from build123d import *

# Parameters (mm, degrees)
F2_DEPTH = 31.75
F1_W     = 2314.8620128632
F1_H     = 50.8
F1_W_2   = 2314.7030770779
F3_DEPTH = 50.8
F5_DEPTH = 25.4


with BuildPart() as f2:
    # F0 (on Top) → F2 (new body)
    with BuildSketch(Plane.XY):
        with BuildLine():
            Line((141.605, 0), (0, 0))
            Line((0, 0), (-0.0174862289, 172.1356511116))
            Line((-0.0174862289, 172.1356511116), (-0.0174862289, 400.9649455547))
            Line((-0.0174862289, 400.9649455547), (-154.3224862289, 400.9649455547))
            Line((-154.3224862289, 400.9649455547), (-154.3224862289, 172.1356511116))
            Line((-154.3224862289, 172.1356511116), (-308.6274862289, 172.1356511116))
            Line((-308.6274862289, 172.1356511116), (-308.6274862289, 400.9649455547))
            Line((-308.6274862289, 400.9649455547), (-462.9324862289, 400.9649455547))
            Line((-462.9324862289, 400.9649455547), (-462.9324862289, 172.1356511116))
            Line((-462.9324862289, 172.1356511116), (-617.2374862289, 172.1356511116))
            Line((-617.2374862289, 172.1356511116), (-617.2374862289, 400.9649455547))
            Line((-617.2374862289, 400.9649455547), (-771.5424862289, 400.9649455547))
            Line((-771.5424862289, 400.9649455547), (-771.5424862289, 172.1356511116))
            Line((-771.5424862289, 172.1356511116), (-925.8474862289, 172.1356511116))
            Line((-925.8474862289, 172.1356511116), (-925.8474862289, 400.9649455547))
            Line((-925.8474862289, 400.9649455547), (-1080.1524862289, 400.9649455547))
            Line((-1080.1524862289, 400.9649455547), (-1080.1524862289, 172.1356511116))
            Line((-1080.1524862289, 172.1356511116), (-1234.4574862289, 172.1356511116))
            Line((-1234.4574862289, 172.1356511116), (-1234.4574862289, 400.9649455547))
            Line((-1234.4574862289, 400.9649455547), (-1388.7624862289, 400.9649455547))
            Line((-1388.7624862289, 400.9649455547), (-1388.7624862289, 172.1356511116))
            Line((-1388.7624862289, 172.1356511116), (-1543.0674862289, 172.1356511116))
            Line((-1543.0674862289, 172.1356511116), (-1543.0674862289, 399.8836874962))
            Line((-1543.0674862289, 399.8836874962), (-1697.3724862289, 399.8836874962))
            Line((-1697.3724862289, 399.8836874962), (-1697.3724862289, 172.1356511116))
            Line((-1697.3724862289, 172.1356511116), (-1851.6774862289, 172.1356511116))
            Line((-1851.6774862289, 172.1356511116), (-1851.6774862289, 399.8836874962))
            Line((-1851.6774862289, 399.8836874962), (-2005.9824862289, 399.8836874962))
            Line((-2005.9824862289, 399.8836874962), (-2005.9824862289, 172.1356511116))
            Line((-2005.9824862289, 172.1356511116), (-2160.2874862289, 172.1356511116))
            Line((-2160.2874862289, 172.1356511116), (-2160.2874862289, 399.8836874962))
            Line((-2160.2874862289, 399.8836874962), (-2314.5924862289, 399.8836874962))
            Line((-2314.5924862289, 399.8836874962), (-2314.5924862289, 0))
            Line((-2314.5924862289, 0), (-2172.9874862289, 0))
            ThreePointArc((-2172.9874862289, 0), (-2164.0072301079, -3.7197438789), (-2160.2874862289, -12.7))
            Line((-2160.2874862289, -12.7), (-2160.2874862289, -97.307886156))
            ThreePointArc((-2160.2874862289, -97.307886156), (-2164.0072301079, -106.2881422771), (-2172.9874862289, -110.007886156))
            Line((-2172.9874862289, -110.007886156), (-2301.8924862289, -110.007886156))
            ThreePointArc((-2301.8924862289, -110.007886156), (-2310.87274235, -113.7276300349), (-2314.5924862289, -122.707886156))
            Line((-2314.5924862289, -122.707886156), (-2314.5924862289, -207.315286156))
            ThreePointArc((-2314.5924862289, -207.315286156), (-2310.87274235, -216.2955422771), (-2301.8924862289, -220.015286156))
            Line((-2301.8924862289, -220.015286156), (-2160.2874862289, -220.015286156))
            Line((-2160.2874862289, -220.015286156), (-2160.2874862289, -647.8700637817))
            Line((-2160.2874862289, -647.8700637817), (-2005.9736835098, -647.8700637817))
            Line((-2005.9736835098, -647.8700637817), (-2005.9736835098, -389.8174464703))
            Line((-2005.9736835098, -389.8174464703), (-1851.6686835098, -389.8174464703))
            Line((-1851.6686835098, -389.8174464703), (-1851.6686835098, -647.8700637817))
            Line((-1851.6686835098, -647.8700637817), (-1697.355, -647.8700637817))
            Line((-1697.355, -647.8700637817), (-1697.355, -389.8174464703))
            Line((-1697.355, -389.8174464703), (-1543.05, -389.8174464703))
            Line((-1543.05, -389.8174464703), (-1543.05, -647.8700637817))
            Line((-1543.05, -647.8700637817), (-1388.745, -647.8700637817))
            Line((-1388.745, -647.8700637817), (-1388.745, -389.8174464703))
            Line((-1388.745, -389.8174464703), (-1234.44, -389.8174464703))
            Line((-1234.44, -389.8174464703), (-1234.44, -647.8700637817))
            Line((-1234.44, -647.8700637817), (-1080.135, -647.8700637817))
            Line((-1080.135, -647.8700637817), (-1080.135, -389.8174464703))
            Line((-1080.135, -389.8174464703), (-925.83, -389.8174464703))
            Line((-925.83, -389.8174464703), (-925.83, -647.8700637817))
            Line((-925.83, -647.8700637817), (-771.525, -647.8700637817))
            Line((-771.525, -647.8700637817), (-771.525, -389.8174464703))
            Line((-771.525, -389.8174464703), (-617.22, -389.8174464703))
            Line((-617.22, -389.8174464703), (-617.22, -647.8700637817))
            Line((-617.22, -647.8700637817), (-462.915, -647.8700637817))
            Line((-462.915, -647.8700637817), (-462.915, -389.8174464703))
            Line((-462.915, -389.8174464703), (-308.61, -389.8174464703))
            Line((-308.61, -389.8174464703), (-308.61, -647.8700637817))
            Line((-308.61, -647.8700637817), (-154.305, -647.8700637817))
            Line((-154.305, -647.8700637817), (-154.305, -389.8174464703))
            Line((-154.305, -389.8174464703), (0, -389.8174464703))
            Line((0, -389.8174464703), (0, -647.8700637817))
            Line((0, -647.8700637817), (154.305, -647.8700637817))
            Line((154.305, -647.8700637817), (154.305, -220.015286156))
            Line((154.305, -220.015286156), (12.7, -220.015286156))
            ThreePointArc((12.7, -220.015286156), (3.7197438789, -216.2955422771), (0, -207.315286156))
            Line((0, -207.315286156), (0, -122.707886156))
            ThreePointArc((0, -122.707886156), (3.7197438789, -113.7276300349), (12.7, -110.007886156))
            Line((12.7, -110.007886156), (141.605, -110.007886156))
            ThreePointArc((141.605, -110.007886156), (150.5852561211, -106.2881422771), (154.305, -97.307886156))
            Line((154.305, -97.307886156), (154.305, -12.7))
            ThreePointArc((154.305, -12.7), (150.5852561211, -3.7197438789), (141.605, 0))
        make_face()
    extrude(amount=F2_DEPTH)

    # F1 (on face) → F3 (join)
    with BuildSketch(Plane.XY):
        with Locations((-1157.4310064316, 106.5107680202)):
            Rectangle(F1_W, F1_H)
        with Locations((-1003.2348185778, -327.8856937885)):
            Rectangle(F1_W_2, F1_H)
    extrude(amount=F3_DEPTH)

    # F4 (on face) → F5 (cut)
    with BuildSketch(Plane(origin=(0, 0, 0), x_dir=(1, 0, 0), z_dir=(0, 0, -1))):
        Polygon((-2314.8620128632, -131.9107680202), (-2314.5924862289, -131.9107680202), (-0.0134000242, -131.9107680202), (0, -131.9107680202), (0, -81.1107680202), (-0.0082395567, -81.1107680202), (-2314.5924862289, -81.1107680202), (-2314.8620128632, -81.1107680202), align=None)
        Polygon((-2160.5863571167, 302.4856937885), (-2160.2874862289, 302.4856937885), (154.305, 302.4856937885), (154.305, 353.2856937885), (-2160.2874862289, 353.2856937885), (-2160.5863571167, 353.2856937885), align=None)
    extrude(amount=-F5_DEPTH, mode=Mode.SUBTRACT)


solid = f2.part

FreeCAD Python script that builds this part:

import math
import FreeCAD as App
import Part
import Sketcher
from FreeCAD import Vector
Q = App.Units.Quantity

doc = App.newDocument("Part")
body = doc.addObject("PartDesign::Body", "Body")

# Sketch on XY plane
sketch1 = body.newObject("Sketcher::SketchObject", "Sketch")
sketch1.AttachmentSupport = (doc.getObject("XY_Plane"), [""])
sketch1.MapMode = "FlatFace"
sketch1.addGeometry(Part.LineSegment(Vector(141.605, 0, 0), Vector(0, 0, 0)), False)
sketch1.addGeometry(Part.LineSegment(Vector(0, 0, 0), Vector(-0.017486, 172.135651, 0)), False)
sketch1.addGeometry(Part.LineSegment(Vector(-0.017486, 172.135651, 0), Vector(-0.017486, 400.964946, 0)), False)
sketch1.addGeometry(Part.LineSegment(Vector(-0.017486, 400.964946, 0), Vector(-154.322486, 400.964946, 0)), False)
sketch1.addGeometry(Part.LineSegment(Vector(-154.322486, 400.964946, 0), Vector(-154.322486, 172.135651, 0)), False)
sketch1.addGeometry(Part.LineSegment(Vector(-154.322486, 172.135651, 0), Vector(-308.627486, 172.135651, 0)), False)
sketch1.addGeometry(Part.LineSegment(Vector(-308.627486, 172.135651, 0), Vector(-308.627486, 400.964946, 0)), False)
sketch1.addGeometry(Part.LineSegment(Vector(-308.627486, 400.964946, 0), Vector(-462.932486, 400.964946, 0)), False)
sketch1.addGeometry(Part.LineSegment(Vector(-462.932486, 400.964946, 0), Vector(-462.932486, 172.135651, 0)), False)
sketch1.addGeometry(Part.LineSegment(Vector(-462.932486, 172.135651, 0), Vector(-617.237486, 172.135651, 0)), False)
sketch1.addGeometry(Part.LineSegment(Vector(-617.237486, 172.135651, 0), Vector(-617.237486, 400.964946, 0)), False)
sketch1.addGeometry(Part.LineSegment(Vector(-617.237486, 400.964946, 0), Vector(-771.542486, 400.964946, 0)), False)
sketch1.addGeometry(Part.LineSegment(Vector(-771.542486, 400.964946, 0), Vector(-771.542486, 172.135651, 0)), False)
sketch1.addGeometry(Part.LineSegment(Vector(-771.542486, 172.135651, 0), Vector(-925.847486, 172.135651, 0)), False)
sketch1.addGeometry(Part.LineSegment(Vector(-925.847486, 172.135651, 0), Vector(-925.847486, 400.964946, 0)), False)
sketch1.addGeometry(Part.LineSegment(Vector(-925.847486, 400.964946, 0), Vector(-1080.152486, 400.964946, 0)), False)
sketch1.addGeometry(Part.LineSegment(Vector(-1080.152486, 400.964946, 0), Vector(-1080.152486, 172.135651, 0)), False)
sketch1.addGeometry(Part.LineSegment(Vector(-1080.152486, 172.135651, 0), Vector(-1234.457486, 172.135651, 0)), False)
sketch1.addGeometry(Part.LineSegment(Vector(-1234.457486, 172.135651, 0), Vector(-1234.457486, 400.964946, 0)), False)
sketch1.addGeometry(Part.LineSegment(Vector(-1234.457486, 400.964946, 0), Vector(-1388.762486, 400.964946, 0)), False)
sketch1.addGeometry(Part.LineSegment(Vector(-1388.762486, 400.964946, 0), Vector(-1388.762486, 172.135651, 0)), False)
sketch1.addGeometry(Part.LineSegment(Vector(-1388.762486, 172.135651, 0), Vector(-1543.067486, 172.135651, 0)), False)
sketch1.addGeometry(Part.LineSegment(Vector(-1543.067486, 172.135651, 0), Vector(-1543.067486, 399.883687, 0)), False)
sketch1.addGeometry(Part.LineSegment(Vector(-1543.067486, 399.883687, 0), Vector(-1697.372486, 399.883687, 0)), False)
sketch1.addGeometry(Part.LineSegment(Vector(-1697.372486, 399.883687, 0), Vector(-1697.372486, 172.135651, 0)), False)
sketch1.addGeometry(Part.LineSegment(Vector(-1697.372486, 172.135651, 0), Vector(-1851.677486, 172.135651, 0)), False)
sketch1.addGeometry(Part.LineSegment(Vector(-1851.677486, 172.135651, 0), Vector(-1851.677486, 399.883687, 0)), False)
sketch1.addGeometry(Part.LineSegment(Vector(-1851.677486, 399.883687, 0), Vector(-2005.982486, 399.883687, 0)), False)
sketch1.addGeometry(Part.LineSegment(Vector(-2005.982486, 399.883687, 0), Vector(-2005.982486, 172.135651, 0)), False)
sketch1.addGeometry(Part.LineSegment(Vector(-2005.982486, 172.135651, 0), Vector(-2160.287486, 172.135651, 0)), False)
sketch1.addGeometry(Part.LineSegment(Vector(-2160.287486, 172.135651, 0), Vector(-2160.287486, 399.883687, 0)), False)
sketch1.addGeometry(Part.LineSegment(Vector(-2160.287486, 399.883687, 0), Vector(-2314.592486, 399.883687, 0)), False)
sketch1.addGeometry(Part.LineSegment(Vector(-2314.592486, 399.883687, 0), Vector(-2314.592486, 0, 0)), False)
sketch1.addGeometry(Part.LineSegment(Vector(-2314.592486, 0, 0), Vector(-2172.987486, 0, 0)), False)
sketch1.addGeometry(Part.ArcOfCircle(Part.Circle(Vector(-2172.987486, -12.7, 0), Vector(0, 0, 1), 12.7), math.radians(0), math.radians(90)), False)
sketch1.addGeometry(Part.LineSegment(Vector(-2160.287486, -12.7, 0), Vector(-2160.287486, -97.307886, 0)), False)
sketch1.addGeometry(Part.ArcOfCircle(Part.Circle(Vector(-2172.987486, -97.307886, 0), Vector(0, 0, 1), 12.7), math.radians(-90), math.radians(0)), False)
sketch1.addGeometry(Part.LineSegment(Vector(-2172.987486, -110.007886, 0), Vector(-2301.892486, -110.007886, 0)), False)
sketch1.addGeometry(Part.ArcOfCircle(Part.Circle(Vector(-2301.892486, -122.707886, 0), Vector(0, 0, 1), 12.7), math.radians(90), math.radians(180)), False)
sketch1.addGeometry(Part.LineSegment(Vector(-2314.592486, -122.707886, 0), Vector(-2314.592486, -207.315286, 0)), False)
sketch1.addGeometry(Part.ArcOfCircle(Part.Circle(Vector(-2301.892486, -207.315286, 0), Vector(0, 0, 1), 12.7), math.radians(180), math.radians(270)), False)
sketch1.addGeometry(Part.LineSegment(Vector(-2301.892486, -220.015286, 0), Vector(-2160.287486, -220.015286, 0)), False)
sketch1.addGeometry(Part.LineSegment(Vector(-2160.287486, -220.015286, 0), Vector(-2160.287486, -647.870064, 0)), False)
sketch1.addGeometry(Part.LineSegment(Vector(-2160.287486, -647.870064, 0), Vector(-2005.973684, -647.870064, 0)), False)
sketch1.addGeometry(Part.LineSegment(Vector(-2005.973684, -647.870064, 0), Vector(-2005.973684, -389.817446, 0)), False)
sketch1.addGeometry(Part.LineSegment(Vector(-2005.973684, -389.817446, 0), Vector(-1851.668684, -389.817446, 0)), False)
sketch1.addGeometry(Part.LineSegment(Vector(-1851.668684, -389.817446, 0), Vector(-1851.668684, -647.870064, 0)), False)
sketch1.addGeometry(Part.LineSegment(Vector(-1851.668684, -647.870064, 0), Vector(-1697.355, -647.870064, 0)), False)
sketch1.addGeometry(Part.LineSegment(Vector(-1697.355, -647.870064, 0), Vector(-1697.355, -389.817446, 0)), False)
sketch1.addGeometry(Part.LineSegment(Vector(-1697.355, -389.817446, 0), Vector(-1543.05, -389.817446, 0)), False)
sketch1.addGeometry(Part.LineSegment(Vector(-1543.05, -389.817446, 0), Vector(-1543.05, -647.870064, 0)), False)
sketch1.addGeometry(Part.LineSegment(Vector(-1543.05, -647.870064, 0), Vector(-1388.745, -647.870064, 0)), False)
sketch1.addGeometry(Part.LineSegment(Vector(-1388.745, -647.870064, 0), Vector(-1388.745, -389.817446, 0)), False)
sketch1.addGeometry(Part.LineSegment(Vector(-1388.745, -389.817446, 0), Vector(-1234.44, -389.817446, 0)), False)
sketch1.addGeometry(Part.LineSegment(Vector(-1234.44, -389.817446, 0), Vector(-1234.44, -647.870064, 0)), False)
sketch1.addGeometry(Part.LineSegment(Vector(-1234.44, -647.870064, 0), Vector(-1080.135, -647.870064, 0)), False)
sketch1.addGeometry(Part.LineSegment(Vector(-1080.135, -647.870064, 0), Vector(-1080.135, -389.817446, 0)), False)
sketch1.addGeometry(Part.LineSegment(Vector(-1080.135, -389.817446, 0), Vector(-925.83, -389.817446, 0)), False)
sketch1.addGeometry(Part.LineSegment(Vector(-925.83, -389.817446, 0), Vector(-925.83, -647.870064, 0)), False)
sketch1.addGeometry(Part.LineSegment(Vector(-925.83, -647.870064, 0), Vector(-771.525, -647.870064, 0)), False)
sketch1.addGeometry(Part.LineSegment(Vector(-771.525, -647.870064, 0), Vector(-771.525, -389.817446, 0)), False)
sketch1.addGeometry(Part.LineSegment(Vector(-771.525, -389.817446, 0), Vector(-617.22, -389.817446, 0)), False)
sketch1.addGeometry(Part.LineSegment(Vector(-617.22, -389.817446, 0), Vector(-617.22, -647.870064, 0)), False)
sketch1.addGeometry(Part.LineSegment(Vector(-617.22, -647.870064, 0), Vector(-462.915, -647.870064, 0)), False)
sketch1.addGeometry(Part.LineSegment(Vector(-462.915, -647.870064, 0), Vector(-462.915, -389.817446, 0)), False)
sketch1.addGeometry(Part.LineSegment(Vector(-462.915, -389.817446, 0), Vector(-308.61, -389.817446, 0)), False)
sketch1.addGeometry(Part.LineSegment(Vector(-308.61, -389.817446, 0), Vector(-308.61, -647.870064, 0)), False)
sketch1.addGeometry(Part.LineSegment(Vector(-308.61, -647.870064, 0), Vector(-154.305, -647.870064, 0)), False)
sketch1.addGeometry(Part.LineSegment(Vector(-154.305, -647.870064, 0), Vector(-154.305, -389.817446, 0)), False)
sketch1.addGeometry(Part.LineSegment(Vector(-154.305, -389.817446, 0), Vector(0, -389.817446, 0)), False)
sketch1.addGeometry(Part.LineSegment(Vector(0, -389.817446, 0), Vector(0, -647.870064, 0)), False)
sketch1.addGeometry(Part.LineSegment(Vector(0, -647.870064, 0), Vector(154.305, -647.870064, 0)), False)
sketch1.addGeometry(Part.LineSegment(Vector(154.305, -647.870064, 0), Vector(154.305, -220.015286, 0)), False)
sketch1.addGeometry(Part.LineSegment(Vector(154.305, -220.015286, 0), Vector(12.7, -220.015286, 0)), False)
sketch1.addGeometry(Part.ArcOfCircle(Part.Circle(Vector(12.7, -207.315286, 0), Vector(0, 0, 1), 12.7), math.radians(180), math.radians(270)), False)
sketch1.addGeometry(Part.LineSegment(Vector(0, -207.315286, 0), Vector(0, -122.707886, 0)), False)
sketch1.addGeometry(Part.ArcOfCircle(Part.Circle(Vector(12.7, -122.707886, 0), Vector(0, 0, 1), 12.7), math.radians(90), math.radians(180)), False)
sketch1.addGeometry(Part.LineSegment(Vector(12.7, -110.007886, 0), Vector(141.605, -110.007886, 0)), False)
sketch1.addGeometry(Part.ArcOfCircle(Part.Circle(Vector(141.605, -97.307886, 0), Vector(0, 0, 1), 12.7), math.radians(-90), math.radians(0)), False)
sketch1.addGeometry(Part.LineSegment(Vector(154.305, -97.307886, 0), Vector(154.305, -12.7, 0)), False)
sketch1.addGeometry(Part.ArcOfCircle(Part.Circle(Vector(141.605, -12.7, 0), Vector(0, 0, 1), 12.7), math.radians(0), math.radians(90)), False)
sketch1.addConstraint(Sketcher.Constraint("Coincident", 0, 2, 1, 1))
sketch1.addConstraint(Sketcher.Constraint("Coincident", 1, 2, 2, 1))
sketch1.addConstraint(Sketcher.Constraint("Coincident", 2, 2, 3, 1))
sketch1.addConstraint(Sketcher.Constraint("Coincident", 3, 2, 4, 1))
sketch1.addConstraint(Sketcher.Constraint("Coincident", 4, 2, 5, 1))
sketch1.addConstraint(Sketcher.Constraint("Coincident", 5, 2, 6, 1))
sketch1.addConstraint(Sketcher.Constraint("Coincident", 6, 2, 7, 1))
sketch1.addConstraint(Sketcher.Constraint("Coincident", 7, 2, 8, 1))
sketch1.addConstraint(Sketcher.Constraint("Coincident", 8, 2, 9, 1))
sketch1.addConstraint(Sketcher.Constraint("Coincident", 9, 2, 10, 1))
sketch1.addConstraint(Sketcher.Constraint("Coincident", 10, 2, 11, 1))
sketch1.addConstraint(Sketcher.Constraint("Coincident", 11, 2, 12, 1))
sketch1.addConstraint(Sketcher.Constraint("Coincident", 12, 2, 13, 1))
sketch1.addConstraint(Sketcher.Constraint("Coincident", 13, 2, 14, 1))
sketch1.addConstraint(Sketcher.Constraint("Coincident", 14, 2, 15, 1))
sketch1.addConstraint(Sketcher.Constraint("Coincident", 15, 2, 16, 1))
sketch1.addConstraint(Sketcher.Constraint("Coincident", 16, 2, 17, 1))
sketch1.addConstraint(Sketcher.Constraint("Coincident", 17, 2, 18, 1))
sketch1.addConstraint(Sketcher.Constraint("Coincident", 18, 2, 19, 1))
sketch1.addConstraint(Sketcher.Constraint("Coincident", 19, 2, 20, 1))
sketch1.addConstraint(Sketcher.Constraint("Coincident", 20, 2, 21, 1))
sketch1.addConstraint(Sketcher.Constraint("Coincident", 21, 2, 22, 1))
sketch1.addConstraint(Sketcher.Constraint("Coincident", 22, 2, 23, 1))
sketch1.addConstraint(Sketcher.Constraint("Coincident", 23, 2, 24, 1))
sketch1.addConstraint(Sketcher.Constraint("Coincident", 24, 2, 25, 1))
sketch1.addConstraint(Sketcher.Constraint("Coincident", 25, 2, 26, 1))
sketch1.addConstraint(Sketcher.Constraint("Coincident", 26, 2, 27, 1))
sketch1.addConstraint(Sketcher.Constraint("Coincident", 27, 2, 28, 1))
sketch1.addConstraint(Sketcher.Constraint("Coincident", 28, 2, 29, 1))
sketch1.addConstraint(Sketcher.Constraint("Coincident", 29, 2, 30, 1))
sketch1.addConstraint(Sketcher.Constraint("Coincident", 30, 2, 31, 1))
sketch1.addConstraint(Sketcher.Constraint("Coincident", 31, 2, 32, 1))
sketch1.addConstraint(Sketcher.Constraint("Coincident", 32, 2, 33, 1))
sketch1.addConstraint(Sketcher.Constraint("Tangent", 33, 2, 34, 2))
sketch1.addConstraint(Sketcher.Constraint("Tangent", 34, 1, 35, 1))
sketch1.addConstraint(Sketcher.Constraint("Tangent", 35, 2, 36, 2))
sketch1.addConstraint(Sketcher.Constraint("Tangent", 36, 1, 37, 1))
sketch1.addConstraint(Sketcher.Constraint("Tangent", 37, 2, 38, 1))
sketch1.addConstraint(Sketcher.Constraint("Tangent", 38, 2, 39, 1))
sketch1.addConstraint(Sketcher.Constraint("Tangent", 39, 2, 40, 1))
sketch1.addConstraint(Sketcher.Constraint("Tangent", 40, 2, 41, 1))
sketch1.addConstraint(Sketcher.Constraint("Coincident", 41, 2, 42, 1))
sketch1.addConstraint(Sketcher.Constraint("Coincident", 42, 2, 43, 1))
sketch1.addConstraint(Sketcher.Constraint("Coincident", 43, 2, 44, 1))
sketch1.addConstraint(Sketcher.Constraint("Coincident", 44, 2, 45, 1))
sketch1.addConstraint(Sketcher.Constraint("Coincident", 45, 2, 46, 1))
sketch1.addConstraint(Sketcher.Constraint("Coincident", 46, 2, 47, 1))
sketch1.addConstraint(Sketcher.Constraint("Coincident", 47, 2, 48, 1))
sketch1.addConstraint(Sketcher.Constraint("Coincident", 48, 2, 49, 1))
sketch1.addConstraint(Sketcher.Constraint("Coincident", 49, 2, 50, 1))
sketch1.addConstraint(Sketcher.Constraint("Coincident", 50, 2, 51, 1))
sketch1.addConstraint(Sketcher.Constraint("Coincident", 51, 2, 52, 1))
sketch1.addConstraint(Sketcher.Constraint("Coincident", 52, 2, 53, 1))
sketch1.addConstraint(Sketcher.Constraint("Coincident", 53, 2, 54, 1))
sketch1.addConstraint(Sketcher.Constraint("Coincident", 54, 2, 55, 1))
sketch1.addConstraint(Sketcher.Constraint("Coincident", 55, 2, 56, 1))
sketch1.addConstraint(Sketcher.Constraint("Coincident", 56, 2, 57, 1))
sketch1.addConstraint(Sketcher.Constraint("Coincident", 57, 2, 58, 1))
sketch1.addConstraint(Sketcher.Constraint("Coincident", 58, 2, 59, 1))
sketch1.addConstraint(Sketcher.Constraint("Coincident", 59, 2, 60, 1))
sketch1.addConstraint(Sketcher.Constraint("Coincident", 60, 2, 61, 1))
sketch1.addConstraint(Sketcher.Constraint("Coincident", 61, 2, 62, 1))
sketch1.addConstraint(Sketcher.Constraint("Coincident", 62, 2, 63, 1))
sketch1.addConstraint(Sketcher.Constraint("Coincident", 63, 2, 64, 1))
sketch1.addConstraint(Sketcher.Constraint("Coincident", 64, 2, 65, 1))
sketch1.addConstraint(Sketcher.Constraint("Coincident", 65, 2, 66, 1))
sketch1.addConstraint(Sketcher.Constraint("Coincident", 66, 2, 67, 1))
sketch1.addConstraint(Sketcher.Constraint("Coincident", 67, 2, 68, 1))
sketch1.addConstraint(Sketcher.Constraint("Coincident", 68, 2, 69, 1))
sketch1.addConstraint(Sketcher.Constraint("Coincident", 69, 2, 70, 1))
sketch1.addConstraint(Sketcher.Constraint("Coincident", 70, 2, 71, 1))
sketch1.addConstraint(Sketcher.Constraint("Coincident", 71, 2, 72, 1))
sketch1.addConstraint(Sketcher.Constraint("Coincident", 72, 2, 73, 1))
sketch1.addConstraint(Sketcher.Constraint("Tangent", 73, 2, 74, 2))
sketch1.addConstraint(Sketcher.Constraint("Tangent", 74, 1, 75, 1))
sketch1.addConstraint(Sketcher.Constraint("Tangent", 75, 2, 76, 2))
sketch1.addConstraint(Sketcher.Constraint("Tangent", 76, 1, 77, 1))
sketch1.addConstraint(Sketcher.Constraint("Tangent", 77, 2, 78, 1))
sketch1.addConstraint(Sketcher.Constraint("Tangent", 78, 2, 79, 1))
sketch1.addConstraint(Sketcher.Constraint("Tangent", 79, 2, 80, 1))
sketch1.addConstraint(Sketcher.Constraint("Tangent", 80, 2, 0, 1))
sketch1.addConstraint(Sketcher.Constraint("Horizontal", 0))
sketch1.addConstraint(Sketcher.Constraint("Vertical", 2))
sketch1.addConstraint(Sketcher.Constraint("Horizontal", 3))
sketch1.addConstraint(Sketcher.Constraint("Vertical", 4))
sketch1.addConstraint(Sketcher.Constraint("Horizontal", 5))
sketch1.addConstraint(Sketcher.Constraint("Vertical", 6))
sketch1.addConstraint(Sketcher.Constraint("Horizontal", 7))
sketch1.addConstraint(Sketcher.Constraint("Vertical", 8))
sketch1.addConstraint(Sketcher.Constraint("Horizontal", 9))
sketch1.addConstraint(Sketcher.Constraint("Vertical", 10))
sketch1.addConstraint(Sketcher.Constraint("Horizontal", 11))
sketch1.addConstraint(Sketcher.Constraint("Vertical", 12))
sketch1.addConstraint(Sketcher.Constraint("Horizontal", 13))
sketch1.addConstraint(Sketcher.Constraint("Vertical", 14))
sketch1.addConstraint(Sketcher.Constraint("Horizontal", 15))
sketch1.addConstraint(Sketcher.Constraint("Vertical", 16))
sketch1.addConstraint(Sketcher.Constraint("Horizontal", 17))
sketch1.addConstraint(Sketcher.Constraint("Vertical", 18))
sketch1.addConstraint(Sketcher.Constraint("Horizontal", 19))
sketch1.addConstraint(Sketcher.Constraint("Vertical", 20))
sketch1.addConstraint(Sketcher.Constraint("Horizontal", 21))
sketch1.addConstraint(Sketcher.Constraint("Vertical", 22))
sketch1.addConstraint(Sketcher.Constraint("Horizontal", 23))
sketch1.addConstraint(Sketcher.Constraint("Vertical", 24))
sketch1.addConstraint(Sketcher.Constraint("Horizontal", 25))
sketch1.addConstraint(Sketcher.Constraint("Vertical", 26))
sketch1.addConstraint(Sketcher.Constraint("Horizontal", 27))
sketch1.addConstraint(Sketcher.Constraint("Vertical", 28))
sketch1.addConstraint(Sketcher.Constraint("Horizontal", 29))
sketch1.addConstraint(Sketcher.Constraint("Vertical", 30))
sketch1.addConstraint(Sketcher.Constraint("Horizontal", 31))
sketch1.addConstraint(Sketcher.Constraint("Vertical", 32))
sketch1.addConstraint(Sketcher.Constraint("Horizontal", 33))
sketch1.addConstraint(Sketcher.Constraint("Vertical", 35))
sketch1.addConstraint(Sketcher.Constraint("Horizontal", 37))
sketch1.addConstraint(Sketcher.Constraint("Vertical", 39))
sketch1.addConstraint(Sketcher.Constraint("Horizontal", 41))
sketch1.addConstraint(Sketcher.Constraint("Vertical", 42))
sketch1.addConstraint(Sketcher.Constraint("Horizontal", 43))
sketch1.addConstraint(Sketcher.Constraint("Vertical", 44))
sketch1.addConstraint(Sketcher.Constraint("Horizontal", 45))
sketch1.addConstraint(Sketcher.Constraint("Vertical", 46))
sketch1.addConstraint(Sketcher.Constraint("Horizontal", 47))
sketch1.addConstraint(Sketcher.Constraint("Vertical", 48))
sketch1.addConstraint(Sketcher.Constraint("Horizontal", 49))
sketch1.addConstraint(Sketcher.Constraint("Vertical", 50))
sketch1.addConstraint(Sketcher.Constraint("Horizontal", 51))
sketch1.addConstraint(Sketcher.Constraint("Vertical", 52))
sketch1.addConstraint(Sketcher.Constraint("Horizontal", 53))
sketch1.addConstraint(Sketcher.Constraint("Vertical", 54))
sketch1.addConstraint(Sketcher.Constraint("Horizontal", 55))
sketch1.addConstraint(Sketcher.Constraint("Vertical", 56))
sketch1.addConstraint(Sketcher.Constraint("Horizontal", 57))
sketch1.addConstraint(Sketcher.Constraint("Vertical", 58))
sketch1.addConstraint(Sketcher.Constraint("Horizontal", 59))
sketch1.addConstraint(Sketcher.Constraint("Vertical", 60))
sketch1.addConstraint(Sketcher.Constraint("Horizontal", 61))
sketch1.addConstraint(Sketcher.Constraint("Vertical", 62))
sketch1.addConstraint(Sketcher.Constraint("Horizontal", 63))
sketch1.addConstraint(Sketcher.Constraint("Vertical", 64))
sketch1.addConstraint(Sketcher.Constraint("Horizontal", 65))
sketch1.addConstraint(Sketcher.Constraint("Vertical", 66))
sketch1.addConstraint(Sketcher.Constraint("Horizontal", 67))
sketch1.addConstraint(Sketcher.Constraint("Vertical", 68))
sketch1.addConstraint(Sketcher.Constraint("Horizontal", 69))
sketch1.addConstraint(Sketcher.Constraint("Vertical", 70))
sketch1.addConstraint(Sketcher.Constraint("Horizontal", 71))
sketch1.addConstraint(Sketcher.Constraint("Vertical", 72))
sketch1.addConstraint(Sketcher.Constraint("Horizontal", 73))
sketch1.addConstraint(Sketcher.Constraint("Vertical", 75))
sketch1.addConstraint(Sketcher.Constraint("Horizontal", 77))
sketch1.addConstraint(Sketcher.Constraint("Vertical", 79))
sketch1.addConstraint(Sketcher.Constraint("Coincident", 0, 2, -1, 1))
sketch1.addConstraint(Sketcher.Constraint("Equal", 34, 36))
sketch1.addConstraint(Sketcher.Constraint("Equal", 36, 38))
sketch1.addConstraint(Sketcher.Constraint("Equal", 38, 40))
sketch1.addConstraint(Sketcher.Constraint("Equal", 40, 74))
sketch1.addConstraint(Sketcher.Constraint("Equal", 74, 76))
sketch1.addConstraint(Sketcher.Constraint("Equal", 76, 78))
sketch1.addConstraint(Sketcher.Constraint("Equal", 78, 80))
sketch1.addConstraint(Sketcher.Constraint("Symmetric", 67, 2, 71, 2, -2))
sketch1.addConstraint(Sketcher.Constraint("PointOnObject", 32, 2, -1))
sketch1.addConstraint(Sketcher.Constraint("PointOnObject", 69, 2, -2))
sketch1.addConstraint(Sketcher.Constraint("PointOnObject", 74, 1, -2))
sketch1.addConstraint(Sketcher.Constraint("Horizontal", 40, 3, 74, 3))
sketch1.addConstraint(Sketcher.Constraint("Horizontal", 38, 3, 76, 3))
sketch1.addConstraint(Sketcher.Constraint("Horizontal", 1, 2, 4, 2))
sketch1.addConstraint(Sketcher.Constraint("Horizontal", 3, 2, 6, 2))
sketch1.addConstraint(Sketcher.Constraint("Horizontal", 5, 2, 8, 2))
sketch1.addConstraint(Sketcher.Constraint("Horizontal", 7, 2, 10, 2))
sketch1.addConstraint(Sketcher.Constraint("Horizontal", 9, 2, 12, 2))
sketch1.addConstraint(Sketcher.Constraint("Horizontal", 11, 2, 14, 2))
sketch1.addConstraint(Sketcher.Constraint("Horizontal", 13, 2, 16, 2))
sketch1.addConstraint(Sketcher.Constraint("Horizontal", 15, 2, 18, 2))
sketch1.addConstraint(Sketcher.Constraint("Horizontal", 17, 2, 20, 2))
sketch1.addConstraint(Sketcher.Constraint("Horizontal", 21, 2, 24, 2))
sketch1.addConstraint(Sketcher.Constraint("Horizontal", 23, 2, 26, 2))
sketch1.addConstraint(Sketcher.Constraint("Horizontal", 25, 2, 28, 2))
sketch1.addConstraint(Sketcher.Constraint("Horizontal", 27, 2, 30, 2))
sketch1.addConstraint(Sketcher.Constraint("Horizontal", 43, 2, 46, 2))
sketch1.addConstraint(Sketcher.Constraint("Horizontal", 45, 2, 48, 2))
sketch1.addConstraint(Sketcher.Constraint("Horizontal", 47, 2, 50, 2))
sketch1.addConstraint(Sketcher.Constraint("Horizontal", 49, 2, 52, 2))
sketch1.addConstraint(Sketcher.Constraint("Horizontal", 51, 2, 54, 2))
sketch1.addConstraint(Sketcher.Constraint("Horizontal", 53, 2, 56, 2))
sketch1.addConstraint(Sketcher.Constraint("Horizontal", 55, 2, 58, 2))
sketch1.addConstraint(Sketcher.Constraint("Horizontal", 57, 2, 60, 2))
sketch1.addConstraint(Sketcher.Constraint("Horizontal", 59, 2, 62, 2))
sketch1.addConstraint(Sketcher.Constraint("Horizontal", 61, 2, 64, 2))
sketch1.addConstraint(Sketcher.Constraint("Horizontal", 63, 2, 66, 2))
sketch1.addConstraint(Sketcher.Constraint("Horizontal", 65, 2, 68, 2))
sketch1.addConstraint(Sketcher.Constraint("Vertical", 30, 2, 34, 1))
sketch1.addConstraint(Sketcher.Constraint("Vertical", 32, 2, 38, 2))
sketch1.addConstraint(Sketcher.Constraint("Vertical", 35, 2, 41, 2))
sketch1.addConstraint(Sketcher.Constraint("Vertical", 72, 2, 78, 2))
sketch1.addConstraint(Sketcher.Constraint("Equal", 3, 5))
sketch1.addConstraint(Sketcher.Constraint("Equal", 5, 7))
sketch1.addConstraint(Sketcher.Constraint("Equal", 7, 9))
sketch1.addConstraint(Sketcher.Constraint("Equal", 9, 11))
sketch1.addConstraint(Sketcher.Constraint("Equal", 11, 13))
sketch1.addConstraint(Sketcher.Constraint("Equal", 13, 15))
sketch1.addConstraint(Sketcher.Constraint("Equal", 15, 17))
sketch1.addConstraint(Sketcher.Constraint("Equal", 17, 19))
sketch1.addConstraint(Sketcher.Constraint("Equal", 19, 21))
sketch1.addConstraint(Sketcher.Constraint("Equal", 21, 23))
sketch1.addConstraint(Sketcher.Constraint("Equal", 23, 25))
sketch1.addConstraint(Sketcher.Constraint("Equal", 25, 27))
sketch1.addConstraint(Sketcher.Constraint("Equal", 27, 29))
sketch1.addConstraint(Sketcher.Constraint("Equal", 29, 31))
sketch1.addConstraint(Sketcher.Constraint("Equal", 0, 33))
sketch1.addConstraint(Sketcher.Constraint("Equal", 31, 45))
sketch1.addConstraint(Sketcher.Constraint("Equal", 45, 49))
sketch1.addConstraint(Sketcher.Constraint("Equal", 49, 51))
sketch1.addConstraint(Sketcher.Constraint("Equal", 51, 53))
sketch1.addConstraint(Sketcher.Constraint("Equal", 53, 55))
sketch1.addConstraint(Sketcher.Constraint("Equal", 55, 57))
sketch1.addConstraint(Sketcher.Constraint("Equal", 57, 59))
sketch1.addConstraint(Sketcher.Constraint("Equal", 59, 61))
sketch1.addConstraint(Sketcher.Constraint("Equal", 61, 63))
sketch1.addConstraint(Sketcher.Constraint("Equal", 63, 65))
sketch1.addConstraint(Sketcher.Constraint("Equal", 65, 67))
sketch1.addConstraint(Sketcher.Constraint("Radius", 34, Q("0.5 in")))
sketch1.addConstraint(Sketcher.Constraint("DistanceX", 53, 2, -1, 1, Q("48.6 in")))
sketch1.addConstraint(Sketcher.Constraint("DistanceY", 39, 2, 39, 1, Q("3.331 in")))
sketch1.addConstraint(Sketcher.Constraint("DistanceX", 43, 1, 43, 2, 154.313803))
sketch1.addConstraint(Sketcher.Constraint("DistanceX", 47, 1, 47, 2, 154.313684))
sketch1.addConstraint(Sketcher.Constraint("DistanceY", 2, 1, 2, 2, 228.829294))
sketch1.addConstraint(Sketcher.Constraint("DistanceY", 22, 1, 22, 2, 227.748036))
sketch1.addConstraint(Sketcher.Constraint("DistanceY", 32, 2, 32, 1, 399.883687))
sketch1.addConstraint(Sketcher.Constraint("DistanceY", 35, 2, 35, 1, 84.607886))
sketch1.addConstraint(Sketcher.Constraint("DistanceY", 42, 2, 42, 1, 427.854778))
sketch1.addConstraint(Sketcher.Constraint("DistanceY", 44, 1, 44, 2, 258.052617))
pad1 = body.newObject("PartDesign::Pad", "Pad")
pad1.Profile = sketch1
pad1.Length = Q("1.25 in")

# Sketch on XY plane
sketch2 = body.newObject("Sketcher::SketchObject", "Sketch001")
sketch2.AttachmentSupport = (doc.getObject("XY_Plane"), [""])
sketch2.MapMode = "FlatFace"
sketch2.addGeometry(Part.LineSegment(Vector(-2314.862013, 131.910768, 0), Vector(-2314.862013, 81.110768, 0)), False)
sketch2.addGeometry(Part.LineSegment(Vector(-2314.862013, 81.110768, 0), Vector(0, 81.110768, 0)), False)
sketch2.addGeometry(Part.LineSegment(Vector(0, 81.110768, 0), Vector(0, 131.910768, 0)), False)
sketch2.addGeometry(Part.LineSegment(Vector(0, 131.910768, 0), Vector(-2314.862013, 131.910768, 0)), False)
sketch2.addGeometry(Part.LineSegment(Vector(-2160.586357, -302.485694, 0), Vector(-2160.586357, -353.285694, 0)), False)
sketch2.addGeometry(Part.LineSegment(Vector(-2160.586357, -353.285694, 0), Vector(154.11672, -353.285694, 0)), False)
sketch2.addGeometry(Part.LineSegment(Vector(154.11672, -353.285694, 0), Vector(154.11672, -302.485694, 0)), False)
sketch2.addGeometry(Part.LineSegment(Vector(154.11672, -302.485694, 0), Vector(-2160.586357, -302.485694, 0)), False)
sketch2.addConstraint(Sketcher.Constraint("Coincident", 0, 2, 1, 1))
sketch2.addConstraint(Sketcher.Constraint("Coincident", 1, 2, 2, 1))
sketch2.addConstraint(Sketcher.Constraint("Coincident", 2, 2, 3, 1))
sketch2.addConstraint(Sketcher.Constraint("Coincident", 3, 2, 0, 1))
sketch2.addConstraint(Sketcher.Constraint("Coincident", 4, 2, 5, 1))
sketch2.addConstraint(Sketcher.Constraint("Coincident", 5, 2, 6, 1))
sketch2.addConstraint(Sketcher.Constraint("Coincident", 6, 2, 7, 1))
sketch2.addConstraint(Sketcher.Constraint("Coincident", 7, 2, 4, 1))
sketch2.addConstraint(Sketcher.Constraint("Vertical", 0))
sketch2.addConstraint(Sketcher.Constraint("Horizontal", 1))
sketch2.addConstraint(Sketcher.Constraint("Vertical", 2))
sketch2.addConstraint(Sketcher.Constraint("Horizontal", 3))
sketch2.addConstraint(Sketcher.Constraint("Vertical", 4))
sketch2.addConstraint(Sketcher.Constraint("Horizontal", 5))
sketch2.addConstraint(Sketcher.Constraint("Vertical", 6))
sketch2.addConstraint(Sketcher.Constraint("Horizontal", 7))
sketch2.addConstraint(Sketcher.Constraint("PointOnObject", 1, 2, -2))
sketch2.addConstraint(Sketcher.Constraint("Equal", 2, 4))
sketch2.addConstraint(Sketcher.Constraint("DistanceY", 0, 2, 0, 1, Q("2 in")))
sketch2.addConstraint(Sketcher.Constraint("DistanceX", 1, 1, 1, 2, 2314.862013))
sketch2.addConstraint(Sketcher.Constraint("DistanceX", 5, 1, 5, 2, 2314.703077))
sketch2.addConstraint(Sketcher.Constraint("DistanceY", -1, 1, 0, 2, 81.110768))
sketch2.addConstraint(Sketcher.Constraint("DistanceX", -1, 1, 5, 2, 154.11672))
sketch2.addConstraint(Sketcher.Constraint("DistanceY", 4, 2, 0, 2, 434.396462))
pad2 = body.newObject("PartDesign::Pad", "Pad001")
pad2.Profile = sketch2
pad2.Length = Q("2 in")

# Sketch on XY plane
sketch3 = body.newObject("Sketcher::SketchObject", "Sketch002")
sketch3.AttachmentSupport = (doc.getObject("XY_Plane"), [""])
sketch3.MapMode = "FlatFace"
sketch3.addGeometry(Part.LineSegment(Vector(-2314.862013, 131.910768, 0), Vector(0, 131.910768, 0)), False)
sketch3.addGeometry(Part.LineSegment(Vector(0, 131.910768, 0), Vector(0, 81.110768, 0)), False)
sketch3.addGeometry(Part.LineSegment(Vector(0, 81.110768, 0), Vector(-2314.862013, 81.110768, 0)), False)
sketch3.addGeometry(Part.LineSegment(Vector(-2314.862013, 81.110768, 0), Vector(-2314.862013, 131.910768, 0)), False)
sketch3.addGeometry(Part.LineSegment(Vector(-2160.586357, -302.485694, 0), Vector(154.305, -302.485694, 0)), False)
sketch3.addGeometry(Part.LineSegment(Vector(154.305, -302.485694, 0), Vector(154.305, -353.285694, 0)), False)
sketch3.addGeometry(Part.LineSegment(Vector(154.305, -353.285694, 0), Vector(-2160.586357, -353.285694, 0)), False)
sketch3.addGeometry(Part.LineSegment(Vector(-2160.586357, -353.285694, 0), Vector(-2160.586357, -302.485694, 0)), False)
sketch3.addConstraint(Sketcher.Constraint("Coincident", 0, 2, 1, 1))
sketch3.addConstraint(Sketcher.Constraint("Coincident", 1, 2, 2, 1))
sketch3.addConstraint(Sketcher.Constraint("Coincident", 2, 2, 3, 1))
sketch3.addConstraint(Sketcher.Constraint("Coincident", 3, 2, 0, 1))
sketch3.addConstraint(Sketcher.Constraint("Coincident", 4, 2, 5, 1))
sketch3.addConstraint(Sketcher.Constraint("Coincident", 5, 2, 6, 1))
sketch3.addConstraint(Sketcher.Constraint("Coincident", 6, 2, 7, 1))
sketch3.addConstraint(Sketcher.Constraint("Coincident", 7, 2, 4, 1))
sketch3.addConstraint(Sketcher.Constraint("Horizontal", 0))
sketch3.addConstraint(Sketcher.Constraint("Vertical", 1))
sketch3.addConstraint(Sketcher.Constraint("Horizontal", 2))
sketch3.addConstraint(Sketcher.Constraint("Vertical", 3))
sketch3.addConstraint(Sketcher.Constraint("Horizontal", 4))
sketch3.addConstraint(Sketcher.Constraint("Vertical", 5))
sketch3.addConstraint(Sketcher.Constraint("Horizontal", 6))
sketch3.addConstraint(Sketcher.Constraint("Vertical", 7))
sketch3.addConstraint(Sketcher.Constraint("PointOnObject", 0, 2, -2))
sketch3.addConstraint(Sketcher.Constraint("Equal", 3, 5))
sketch3.addConstraint(Sketcher.Constraint("DistanceY", 1, 2, 1, 1, Q("2 in")))
sketch3.addConstraint(Sketcher.Constraint("DistanceX", -1, 1, 4, 2, Q("6.075 in")))
sketch3.addConstraint(Sketcher.Constraint("DistanceX", 0, 1, 0, 2, 2314.862013))
sketch3.addConstraint(Sketcher.Constraint("DistanceX", 4, 1, 4, 2, 2314.891357))
sketch3.addConstraint(Sketcher.Constraint("DistanceY", -1, 1, 0, 2, 131.910768))
sketch3.addConstraint(Sketcher.Constraint("DistanceY", 4, 2, 1, 2, 383.596462))
pocket1 = body.newObject("PartDesign::Pocket", "Pocket")
pocket1.Profile = sketch3
pocket1.Length = Q("1 in")
pocket1.Reversed = True

doc.recompute()
